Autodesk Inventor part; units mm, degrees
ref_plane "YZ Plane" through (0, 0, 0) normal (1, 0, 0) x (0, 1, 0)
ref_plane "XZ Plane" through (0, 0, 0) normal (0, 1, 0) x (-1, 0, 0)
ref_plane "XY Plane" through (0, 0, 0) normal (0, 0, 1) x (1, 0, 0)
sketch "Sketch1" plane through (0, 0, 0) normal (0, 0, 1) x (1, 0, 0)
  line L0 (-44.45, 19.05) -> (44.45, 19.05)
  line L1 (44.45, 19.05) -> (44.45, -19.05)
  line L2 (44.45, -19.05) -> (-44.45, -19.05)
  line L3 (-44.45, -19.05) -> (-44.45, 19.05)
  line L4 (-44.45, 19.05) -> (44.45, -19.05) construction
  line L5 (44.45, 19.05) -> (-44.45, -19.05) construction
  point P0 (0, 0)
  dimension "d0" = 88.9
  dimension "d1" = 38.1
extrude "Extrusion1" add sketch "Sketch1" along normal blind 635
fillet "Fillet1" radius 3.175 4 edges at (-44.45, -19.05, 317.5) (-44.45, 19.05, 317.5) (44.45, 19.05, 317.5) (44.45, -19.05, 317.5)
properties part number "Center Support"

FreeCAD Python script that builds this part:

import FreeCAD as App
import Part
import Sketcher
from FreeCAD import Vector
Q = App.Units.Quantity


def edges_at(feature, points):
    """Names of the edges that pass closest to the given points."""
    edges = feature.Shape.Edges
    near = lambda p: min(range(len(edges)), key=lambda i: edges[i].distToShape(Part.Vertex(*p))[0])
    return sorted({f"Edge{near(p) + 1}" for p in points})

doc = App.newDocument("Part")
body = doc.addObject("PartDesign::Body", "Body")

# Sketch on XY plane
sketch1 = body.newObject("Sketcher::SketchObject", "Sketch")
sketch1.AttachmentSupport = (doc.getObject("XY_Plane"), [""])
sketch1.MapMode = "FlatFace"
sketch1.addGeometry([
    Part.LineSegment(Vector(44, 19, 0), Vector(-44, 19, 0)),
    Part.LineSegment(Vector(-44, 19, 0), Vector(-44, -19, 0)),
    Part.LineSegment(Vector(-44, -19, 0), Vector(44, -19, 0)),
    Part.LineSegment(Vector(44, -19, 0), Vector(44, 19, 0)),
], False)
sketch1.addConstraint([
    Sketcher.Constraint("Coincident", 0, 2, 1, 1),
    Sketcher.Constraint("Coincident", 1, 2, 2, 1),
    Sketcher.Constraint("Coincident", 2, 2, 3, 1),
    Sketcher.Constraint("Coincident", 3, 2, 0, 1),
    Sketcher.Constraint("Horizontal", 0),
    Sketcher.Constraint("Vertical", 1),
    Sketcher.Constraint("Horizontal", 2),
    Sketcher.Constraint("Vertical", 3),
    Sketcher.Constraint("Symmetric", 0, 2, 2, 2, -1, 1),
    Sketcher.Constraint("DistanceX", 0, 2, 0, 1, Q("3.5 in")),
    Sketcher.Constraint("DistanceY", 1, 2, 1, 1, Q("1.5 in")),
])
pad1 = body.newObject("PartDesign::Pad", "Pad")
pad1.Profile = sketch1
pad1.Length = Q("25 in")
doc.recompute()

fillet = body.newObject("PartDesign::Fillet", "Fillet")
fillet.Base = (pad1, edges_at(pad1, [
    (-44.45, -19.05, 317.5),
    (-44.45, 19.05, 317.5),
    (44.45, 19.05, 317.5),
    (44.45, -19.05, 317.5),
]))
fillet.Radius = Q("0.125 in")

doc.recompute()
